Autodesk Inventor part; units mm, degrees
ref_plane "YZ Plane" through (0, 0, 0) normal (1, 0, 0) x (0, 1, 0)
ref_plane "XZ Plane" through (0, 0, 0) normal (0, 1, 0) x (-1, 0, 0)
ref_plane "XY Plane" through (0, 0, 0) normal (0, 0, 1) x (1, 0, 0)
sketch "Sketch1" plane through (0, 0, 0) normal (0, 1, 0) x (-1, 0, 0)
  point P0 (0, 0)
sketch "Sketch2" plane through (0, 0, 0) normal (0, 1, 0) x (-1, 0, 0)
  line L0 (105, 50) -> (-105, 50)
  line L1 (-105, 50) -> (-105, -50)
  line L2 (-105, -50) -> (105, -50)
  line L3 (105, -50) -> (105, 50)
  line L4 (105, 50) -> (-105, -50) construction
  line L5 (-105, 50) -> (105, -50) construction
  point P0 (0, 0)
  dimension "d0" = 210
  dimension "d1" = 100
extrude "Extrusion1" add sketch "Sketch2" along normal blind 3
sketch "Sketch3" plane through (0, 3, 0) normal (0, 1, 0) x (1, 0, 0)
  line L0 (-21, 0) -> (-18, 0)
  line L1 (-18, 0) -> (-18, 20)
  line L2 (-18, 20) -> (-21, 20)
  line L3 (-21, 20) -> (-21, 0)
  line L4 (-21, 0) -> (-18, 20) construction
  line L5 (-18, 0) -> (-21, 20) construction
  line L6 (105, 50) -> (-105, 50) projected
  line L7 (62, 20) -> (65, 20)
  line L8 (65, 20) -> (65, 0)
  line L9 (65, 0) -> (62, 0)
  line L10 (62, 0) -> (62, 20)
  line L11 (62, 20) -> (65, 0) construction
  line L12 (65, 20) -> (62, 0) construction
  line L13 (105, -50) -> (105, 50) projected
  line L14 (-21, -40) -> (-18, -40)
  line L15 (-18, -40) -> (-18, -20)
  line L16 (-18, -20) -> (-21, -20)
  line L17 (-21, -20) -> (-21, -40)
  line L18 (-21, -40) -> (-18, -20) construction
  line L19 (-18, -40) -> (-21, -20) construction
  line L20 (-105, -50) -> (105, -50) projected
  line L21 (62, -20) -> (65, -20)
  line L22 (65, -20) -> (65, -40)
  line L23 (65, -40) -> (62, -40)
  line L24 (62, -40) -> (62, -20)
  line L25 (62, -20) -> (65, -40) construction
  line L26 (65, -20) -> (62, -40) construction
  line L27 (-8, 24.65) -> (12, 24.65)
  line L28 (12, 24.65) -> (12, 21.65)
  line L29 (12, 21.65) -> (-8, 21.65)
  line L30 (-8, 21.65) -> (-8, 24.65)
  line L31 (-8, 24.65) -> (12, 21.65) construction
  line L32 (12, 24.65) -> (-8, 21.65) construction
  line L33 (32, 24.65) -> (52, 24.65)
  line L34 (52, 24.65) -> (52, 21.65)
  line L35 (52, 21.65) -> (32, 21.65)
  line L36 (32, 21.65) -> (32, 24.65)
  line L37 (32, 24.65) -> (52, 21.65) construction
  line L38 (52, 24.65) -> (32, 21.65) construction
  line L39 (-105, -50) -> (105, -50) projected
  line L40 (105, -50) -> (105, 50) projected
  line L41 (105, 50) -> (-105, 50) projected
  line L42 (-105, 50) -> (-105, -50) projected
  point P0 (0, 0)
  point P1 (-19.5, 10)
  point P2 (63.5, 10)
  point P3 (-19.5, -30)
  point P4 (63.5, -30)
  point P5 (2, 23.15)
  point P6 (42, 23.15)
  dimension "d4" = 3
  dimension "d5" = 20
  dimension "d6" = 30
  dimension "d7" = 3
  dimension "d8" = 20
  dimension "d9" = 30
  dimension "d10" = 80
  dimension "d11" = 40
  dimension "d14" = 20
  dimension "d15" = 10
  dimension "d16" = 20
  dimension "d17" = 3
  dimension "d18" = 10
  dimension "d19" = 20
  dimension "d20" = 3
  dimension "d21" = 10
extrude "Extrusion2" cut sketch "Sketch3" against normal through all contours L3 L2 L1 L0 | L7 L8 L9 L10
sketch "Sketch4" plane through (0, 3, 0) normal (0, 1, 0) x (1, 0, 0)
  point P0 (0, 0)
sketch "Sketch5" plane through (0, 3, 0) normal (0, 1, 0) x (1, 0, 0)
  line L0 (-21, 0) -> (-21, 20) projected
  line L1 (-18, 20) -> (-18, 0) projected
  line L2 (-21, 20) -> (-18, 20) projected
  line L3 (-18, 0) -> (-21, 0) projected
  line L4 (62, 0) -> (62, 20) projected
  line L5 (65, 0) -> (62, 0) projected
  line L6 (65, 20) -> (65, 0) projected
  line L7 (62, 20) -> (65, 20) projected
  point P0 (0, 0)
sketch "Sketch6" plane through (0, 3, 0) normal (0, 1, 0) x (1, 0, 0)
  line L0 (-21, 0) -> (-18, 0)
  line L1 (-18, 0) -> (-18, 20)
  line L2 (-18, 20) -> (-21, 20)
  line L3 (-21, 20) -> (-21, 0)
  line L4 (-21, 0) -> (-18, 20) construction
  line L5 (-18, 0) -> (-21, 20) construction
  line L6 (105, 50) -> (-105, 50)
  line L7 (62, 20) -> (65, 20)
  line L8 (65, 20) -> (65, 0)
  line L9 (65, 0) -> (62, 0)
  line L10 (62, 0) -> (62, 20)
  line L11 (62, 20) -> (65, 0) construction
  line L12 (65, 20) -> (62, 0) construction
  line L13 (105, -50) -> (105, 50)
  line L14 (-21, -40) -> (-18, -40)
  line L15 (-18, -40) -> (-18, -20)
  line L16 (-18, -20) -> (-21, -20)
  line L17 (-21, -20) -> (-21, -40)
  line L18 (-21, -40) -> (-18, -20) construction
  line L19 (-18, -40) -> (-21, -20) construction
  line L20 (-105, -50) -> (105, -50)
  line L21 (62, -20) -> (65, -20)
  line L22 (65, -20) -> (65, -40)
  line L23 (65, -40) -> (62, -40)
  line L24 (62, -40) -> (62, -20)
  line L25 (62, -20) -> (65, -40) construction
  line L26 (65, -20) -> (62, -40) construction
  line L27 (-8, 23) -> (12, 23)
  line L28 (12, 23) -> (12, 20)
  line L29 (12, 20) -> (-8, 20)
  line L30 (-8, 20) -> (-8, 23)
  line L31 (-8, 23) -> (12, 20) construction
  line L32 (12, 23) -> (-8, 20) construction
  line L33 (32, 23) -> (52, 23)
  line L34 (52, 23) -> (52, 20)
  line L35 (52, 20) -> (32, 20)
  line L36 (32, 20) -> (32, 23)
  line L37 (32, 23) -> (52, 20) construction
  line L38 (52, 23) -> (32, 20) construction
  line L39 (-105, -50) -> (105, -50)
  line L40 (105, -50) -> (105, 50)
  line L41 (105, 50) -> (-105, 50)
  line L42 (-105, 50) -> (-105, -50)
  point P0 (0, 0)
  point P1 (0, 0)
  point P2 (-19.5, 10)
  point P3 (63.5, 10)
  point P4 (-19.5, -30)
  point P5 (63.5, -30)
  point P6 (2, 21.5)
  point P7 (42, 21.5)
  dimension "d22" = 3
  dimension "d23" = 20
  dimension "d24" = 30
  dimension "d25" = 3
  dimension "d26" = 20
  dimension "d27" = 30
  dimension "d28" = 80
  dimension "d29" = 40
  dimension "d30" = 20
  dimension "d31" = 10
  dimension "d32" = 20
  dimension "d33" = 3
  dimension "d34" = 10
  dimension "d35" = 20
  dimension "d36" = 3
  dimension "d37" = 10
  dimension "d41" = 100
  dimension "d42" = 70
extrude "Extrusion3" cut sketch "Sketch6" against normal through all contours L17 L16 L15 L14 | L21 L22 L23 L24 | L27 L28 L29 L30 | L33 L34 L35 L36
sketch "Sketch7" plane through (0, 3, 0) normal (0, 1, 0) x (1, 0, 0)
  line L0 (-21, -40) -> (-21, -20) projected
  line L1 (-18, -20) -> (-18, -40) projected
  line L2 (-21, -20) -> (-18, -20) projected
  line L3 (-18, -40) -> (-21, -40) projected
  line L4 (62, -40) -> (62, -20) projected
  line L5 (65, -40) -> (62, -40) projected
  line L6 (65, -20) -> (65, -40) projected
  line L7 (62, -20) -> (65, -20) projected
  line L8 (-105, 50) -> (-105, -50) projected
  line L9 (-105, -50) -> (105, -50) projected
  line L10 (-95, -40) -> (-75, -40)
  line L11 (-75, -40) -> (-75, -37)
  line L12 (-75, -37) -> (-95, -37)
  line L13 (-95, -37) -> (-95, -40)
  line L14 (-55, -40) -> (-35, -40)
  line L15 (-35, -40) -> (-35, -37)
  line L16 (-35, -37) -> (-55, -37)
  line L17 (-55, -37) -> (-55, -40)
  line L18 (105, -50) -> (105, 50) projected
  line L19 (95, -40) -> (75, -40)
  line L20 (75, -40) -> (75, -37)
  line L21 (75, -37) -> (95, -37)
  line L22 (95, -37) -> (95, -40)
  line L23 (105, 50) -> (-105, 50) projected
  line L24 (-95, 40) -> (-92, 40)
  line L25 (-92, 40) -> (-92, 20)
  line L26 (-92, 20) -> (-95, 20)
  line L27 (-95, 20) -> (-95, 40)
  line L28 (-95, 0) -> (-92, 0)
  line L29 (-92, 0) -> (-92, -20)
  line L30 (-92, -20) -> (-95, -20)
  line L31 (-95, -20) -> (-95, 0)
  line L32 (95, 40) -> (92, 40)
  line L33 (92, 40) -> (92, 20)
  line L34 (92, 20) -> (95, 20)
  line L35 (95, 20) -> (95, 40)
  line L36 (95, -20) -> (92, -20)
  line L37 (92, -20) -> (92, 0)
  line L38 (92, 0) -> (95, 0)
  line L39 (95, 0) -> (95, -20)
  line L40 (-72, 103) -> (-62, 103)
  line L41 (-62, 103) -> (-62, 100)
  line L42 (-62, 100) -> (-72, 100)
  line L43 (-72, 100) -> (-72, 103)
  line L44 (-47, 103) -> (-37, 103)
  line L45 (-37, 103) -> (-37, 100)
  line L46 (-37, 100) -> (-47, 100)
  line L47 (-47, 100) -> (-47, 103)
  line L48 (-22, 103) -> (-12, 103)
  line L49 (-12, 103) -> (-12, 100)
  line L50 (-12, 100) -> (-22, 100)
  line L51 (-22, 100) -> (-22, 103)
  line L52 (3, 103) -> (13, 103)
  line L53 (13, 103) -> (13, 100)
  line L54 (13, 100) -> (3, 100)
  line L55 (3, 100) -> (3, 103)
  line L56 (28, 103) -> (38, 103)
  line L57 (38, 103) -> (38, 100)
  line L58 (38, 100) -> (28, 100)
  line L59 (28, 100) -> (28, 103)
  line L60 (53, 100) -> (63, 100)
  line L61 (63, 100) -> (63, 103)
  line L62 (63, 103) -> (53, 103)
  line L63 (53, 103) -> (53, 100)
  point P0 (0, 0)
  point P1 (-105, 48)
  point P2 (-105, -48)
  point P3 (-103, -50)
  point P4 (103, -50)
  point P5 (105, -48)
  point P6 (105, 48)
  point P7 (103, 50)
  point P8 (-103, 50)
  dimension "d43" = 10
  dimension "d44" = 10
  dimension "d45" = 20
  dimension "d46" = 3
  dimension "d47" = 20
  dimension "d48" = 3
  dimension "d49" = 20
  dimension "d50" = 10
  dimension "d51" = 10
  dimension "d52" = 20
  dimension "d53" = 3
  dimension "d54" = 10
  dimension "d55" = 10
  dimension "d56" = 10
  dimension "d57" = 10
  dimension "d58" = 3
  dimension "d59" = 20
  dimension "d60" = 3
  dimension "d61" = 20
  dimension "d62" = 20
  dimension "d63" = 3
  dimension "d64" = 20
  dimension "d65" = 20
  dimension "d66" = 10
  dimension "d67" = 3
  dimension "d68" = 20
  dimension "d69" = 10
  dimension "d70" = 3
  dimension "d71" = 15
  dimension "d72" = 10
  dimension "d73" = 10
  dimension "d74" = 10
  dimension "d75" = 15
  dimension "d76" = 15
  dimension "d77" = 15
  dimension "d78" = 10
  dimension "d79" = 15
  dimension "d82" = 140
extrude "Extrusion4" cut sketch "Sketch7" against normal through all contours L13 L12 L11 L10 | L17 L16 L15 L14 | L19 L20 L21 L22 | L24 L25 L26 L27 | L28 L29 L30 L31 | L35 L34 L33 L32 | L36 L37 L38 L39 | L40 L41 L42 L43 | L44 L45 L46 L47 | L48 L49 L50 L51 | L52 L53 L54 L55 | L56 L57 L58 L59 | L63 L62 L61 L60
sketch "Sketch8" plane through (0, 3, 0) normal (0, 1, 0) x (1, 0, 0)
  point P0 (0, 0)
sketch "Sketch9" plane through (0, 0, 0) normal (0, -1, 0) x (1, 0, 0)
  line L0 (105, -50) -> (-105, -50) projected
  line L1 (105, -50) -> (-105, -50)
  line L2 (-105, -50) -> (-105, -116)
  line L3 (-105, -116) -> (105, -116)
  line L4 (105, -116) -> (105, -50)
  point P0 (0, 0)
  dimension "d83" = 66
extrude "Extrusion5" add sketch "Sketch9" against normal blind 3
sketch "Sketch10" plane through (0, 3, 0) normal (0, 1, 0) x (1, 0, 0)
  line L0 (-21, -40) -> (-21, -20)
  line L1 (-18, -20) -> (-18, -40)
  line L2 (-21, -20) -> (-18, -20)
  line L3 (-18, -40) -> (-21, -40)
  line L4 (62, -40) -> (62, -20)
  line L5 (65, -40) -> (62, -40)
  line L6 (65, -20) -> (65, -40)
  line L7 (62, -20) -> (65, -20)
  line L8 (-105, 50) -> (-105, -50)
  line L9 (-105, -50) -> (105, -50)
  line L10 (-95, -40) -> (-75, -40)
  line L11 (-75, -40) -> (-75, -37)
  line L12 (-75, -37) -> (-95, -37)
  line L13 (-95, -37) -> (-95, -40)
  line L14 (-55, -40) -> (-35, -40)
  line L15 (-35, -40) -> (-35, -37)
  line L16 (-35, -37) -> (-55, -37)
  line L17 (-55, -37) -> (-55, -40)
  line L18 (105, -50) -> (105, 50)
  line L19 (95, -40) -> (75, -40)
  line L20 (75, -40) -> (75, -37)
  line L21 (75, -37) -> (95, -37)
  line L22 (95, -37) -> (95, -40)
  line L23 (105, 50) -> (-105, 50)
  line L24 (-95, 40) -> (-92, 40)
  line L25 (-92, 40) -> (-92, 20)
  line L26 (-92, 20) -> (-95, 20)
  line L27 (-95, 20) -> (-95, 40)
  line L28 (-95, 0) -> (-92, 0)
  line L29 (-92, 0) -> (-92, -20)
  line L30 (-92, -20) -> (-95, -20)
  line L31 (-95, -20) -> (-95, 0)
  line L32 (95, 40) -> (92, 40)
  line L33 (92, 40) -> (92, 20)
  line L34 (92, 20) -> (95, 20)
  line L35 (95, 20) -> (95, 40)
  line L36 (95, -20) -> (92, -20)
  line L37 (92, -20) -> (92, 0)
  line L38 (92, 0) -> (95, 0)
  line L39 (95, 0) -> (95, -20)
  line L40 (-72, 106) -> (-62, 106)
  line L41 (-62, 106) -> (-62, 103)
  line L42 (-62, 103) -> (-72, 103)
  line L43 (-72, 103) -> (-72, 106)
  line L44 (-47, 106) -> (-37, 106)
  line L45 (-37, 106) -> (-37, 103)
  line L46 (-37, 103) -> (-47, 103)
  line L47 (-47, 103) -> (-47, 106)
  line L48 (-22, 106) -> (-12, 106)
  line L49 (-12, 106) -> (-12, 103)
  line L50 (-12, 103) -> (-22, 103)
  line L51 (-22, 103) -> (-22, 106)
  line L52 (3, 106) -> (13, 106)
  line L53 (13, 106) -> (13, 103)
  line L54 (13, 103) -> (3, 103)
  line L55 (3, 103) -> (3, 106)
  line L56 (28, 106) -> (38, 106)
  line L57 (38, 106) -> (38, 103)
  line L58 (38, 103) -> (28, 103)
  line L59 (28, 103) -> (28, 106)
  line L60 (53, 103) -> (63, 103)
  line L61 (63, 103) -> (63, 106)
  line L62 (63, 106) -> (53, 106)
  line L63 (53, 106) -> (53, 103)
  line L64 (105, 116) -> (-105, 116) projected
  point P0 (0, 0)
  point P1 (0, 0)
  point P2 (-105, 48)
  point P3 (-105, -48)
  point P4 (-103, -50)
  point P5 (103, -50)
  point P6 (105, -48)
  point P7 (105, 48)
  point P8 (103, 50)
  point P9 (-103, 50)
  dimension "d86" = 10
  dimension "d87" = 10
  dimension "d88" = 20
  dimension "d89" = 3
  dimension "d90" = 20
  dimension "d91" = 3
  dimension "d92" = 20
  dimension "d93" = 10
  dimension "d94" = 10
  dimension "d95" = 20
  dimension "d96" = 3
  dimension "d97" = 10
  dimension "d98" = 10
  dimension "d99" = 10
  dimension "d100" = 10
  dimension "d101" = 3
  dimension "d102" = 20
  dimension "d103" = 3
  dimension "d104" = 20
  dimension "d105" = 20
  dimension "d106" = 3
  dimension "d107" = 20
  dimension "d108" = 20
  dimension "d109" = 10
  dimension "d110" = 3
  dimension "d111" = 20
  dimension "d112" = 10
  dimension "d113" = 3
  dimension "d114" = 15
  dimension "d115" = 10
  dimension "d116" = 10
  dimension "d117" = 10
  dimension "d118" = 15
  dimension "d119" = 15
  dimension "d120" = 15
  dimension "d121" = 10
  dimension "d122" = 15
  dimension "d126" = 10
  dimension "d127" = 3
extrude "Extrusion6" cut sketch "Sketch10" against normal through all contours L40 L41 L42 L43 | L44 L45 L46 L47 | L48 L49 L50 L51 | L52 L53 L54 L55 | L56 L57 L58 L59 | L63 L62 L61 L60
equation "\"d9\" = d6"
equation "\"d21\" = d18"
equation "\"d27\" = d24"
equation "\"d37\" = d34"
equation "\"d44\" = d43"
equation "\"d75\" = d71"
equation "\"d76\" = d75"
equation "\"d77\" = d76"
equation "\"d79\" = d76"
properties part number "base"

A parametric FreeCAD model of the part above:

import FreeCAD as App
import Part
import Sketcher
from FreeCAD import Vector


def add_polygon(sketch, points):
    """Adds a closed chain of lines whose ends are joined by coincident constraints."""
    first, n = sketch.GeometryCount, len(points)
    for a, b in zip(points, points[1:] + points[:1]):
        sketch.addGeometry(Part.LineSegment(App.Vector(*a, 0), App.Vector(*b, 0)), False)
    for i in range(n):
        sketch.addConstraint(Sketcher.Constraint("Coincident", first + i, 2, first + (i + 1) % n, 1))

doc = App.newDocument("Part")
body = doc.addObject("PartDesign::Body", "Body")

sketch1 = body.newObject("Sketcher::SketchObject", "Sketch")
sketch1.AttachmentSupport = (doc.getObject("XZ_Plane"), [""])
sketch1.MapMode = "FlatFace"
add_polygon(sketch1, [(-105, -50), (-105, 50), (105, 50), (105, -50)])
sketch1.addConstraint([
    Sketcher.Constraint("Vertical", 0),
    Sketcher.Constraint("Horizontal", 1),
    Sketcher.Constraint("Vertical", 2),
    Sketcher.Constraint("Horizontal", 3),
    Sketcher.Constraint("Symmetric", 0, 2, 2, 2, -1, 1),
    Sketcher.Constraint("DistanceX", 1, 1, 1, 2, 210.0),
    Sketcher.Constraint("DistanceY", 0, 1, 0, 2, 100.0),
])
pad1 = body.newObject("PartDesign::Pad", "Pad")
pad1.Profile = sketch1
pad1.Length = 3
pad1.Reversed = True

sketch2 = body.newObject("Sketcher::SketchObject", "Sketch001")
sketch2.AttachmentSupport = (doc.getObject("XZ_Plane"), [""])
sketch2.MapMode = "FlatFace"
sketch2.AttachmentOffset = App.Placement(Vector(0, 0, -3), App.Rotation())
add_polygon(sketch2, [(-21, -20), (-21, 0), (-18, 0), (-18, -20)])
add_polygon(sketch2, [(65, -20), (62, -20), (62, 0), (65, 0)])
sketch2.addConstraint([
    Sketcher.Constraint("Vertical", 0),
    Sketcher.Constraint("Horizontal", 1),
    Sketcher.Constraint("Vertical", 2),
    Sketcher.Constraint("Horizontal", 3),
    Sketcher.Constraint("Horizontal", 4),
    Sketcher.Constraint("Vertical", 5),
    Sketcher.Constraint("Horizontal", 6),
    Sketcher.Constraint("Vertical", 7),
    Sketcher.Constraint("PointOnObject", 0, 2, -1),
    Sketcher.Constraint("PointOnObject", 5, 2, -1),
    Sketcher.Constraint("Horizontal", 3, 2, 4, 2),
    Sketcher.Constraint("Equal", 3, 4),
    Sketcher.Constraint("DistanceX", 1, 1, 1, 2, 3.0),
    Sketcher.Constraint("DistanceY", 0, 1, 0, 2, 20.0),
    Sketcher.Constraint("DistanceX", 2, 2, 4, 2, 80.0),
    Sketcher.Constraint("DistanceX", 0, 2, -1, 1, 21.0),
])
pocket1 = body.newObject("PartDesign::Pocket", "Pocket")
pocket1.Profile = sketch2
pocket1.Type = "ThroughAll"
pocket1.Reversed = True

sketch3 = body.newObject("Sketcher::SketchObject", "Sketch002")
sketch3.AttachmentSupport = (doc.getObject("XZ_Plane"), [""])
sketch3.MapMode = "FlatFace"
sketch3.AttachmentOffset = App.Placement(Vector(0, 0, -3), App.Rotation())
add_polygon(sketch3, [(-21, 20), (-21, 40), (-18, 40), (-18, 20)])
add_polygon(sketch3, [(65, 20), (62, 20), (62, 40), (65, 40)])
add_polygon(sketch3, [(12, -23), (-8, -23), (-8, -20), (12, -20)])
add_polygon(sketch3, [(52, -23), (32, -23), (32, -20), (52, -20)])
sketch3.addConstraint([
    Sketcher.Constraint("Vertical", 0),
    Sketcher.Constraint("Horizontal", 1),
    Sketcher.Constraint("Vertical", 2),
    Sketcher.Constraint("Horizontal", 3),
    Sketcher.Constraint("Horizontal", 4),
    Sketcher.Constraint("Vertical", 5),
    Sketcher.Constraint("Horizontal", 6),
    Sketcher.Constraint("Vertical", 7),
    Sketcher.Constraint("Horizontal", 8),
    Sketcher.Constraint("Vertical", 9),
    Sketcher.Constraint("Horizontal", 10),
    Sketcher.Constraint("Vertical", 11),
    Sketcher.Constraint("Horizontal", 12),
    Sketcher.Constraint("Vertical", 13),
    Sketcher.Constraint("Horizontal", 14),
    Sketcher.Constraint("Vertical", 15),
    Sketcher.Constraint("Horizontal", 3, 2, 4, 2),
    Sketcher.Constraint("Horizontal", 1, 2, 5, 2),
    Sketcher.Constraint("Horizontal", 11, 2, 12, 2),
    Sketcher.Constraint("Horizontal", 10, 2, 13, 2),
    Sketcher.Constraint("Equal", 3, 4),
    Sketcher.Constraint("Equal", 10, 12),
    Sketcher.Constraint("Equal", 14, 0),
    Sketcher.Constraint("Equal", 6, 9),
    Sketcher.Constraint("DistanceX", 1, 1, 1, 2, 3.0),
    Sketcher.Constraint("DistanceX", 8, 2, 8, 1, 20.0),
    Sketcher.Constraint("DistanceY", -1, 1, 0, 2, 40.0),
    Sketcher.Constraint("DistanceY", 9, 2, -1, 1, 20.0),
    Sketcher.Constraint("DistanceX", 2, 2, 4, 2, 80.0),
    Sketcher.Constraint("DistanceX", 2, 2, 8, 2, 10.0),
    Sketcher.Constraint("DistanceX", 11, 2, 12, 2, 20.0),
    Sketcher.Constraint("DistanceX", 0, 2, -1, 1, 21.0),
])
pocket2 = body.newObject("PartDesign::Pocket", "Pocket001")
pocket2.Profile = sketch3
pocket2.Type = "ThroughAll"
pocket2.Reversed = True

sketch4 = body.newObject("Sketcher::SketchObject", "Sketch003")
sketch4.AttachmentSupport = (doc.getObject("XZ_Plane"), [""])
sketch4.MapMode = "FlatFace"
sketch4.AttachmentOffset = App.Placement(Vector(0, 0, -3), App.Rotation())
add_polygon(sketch4, [(-95, 37), (-95, 40), (-75, 40), (-75, 37)])
add_polygon(sketch4, [(-55, 37), (-55, 40), (-35, 40), (-35, 37)])
add_polygon(sketch4, [(75, 40), (95, 40), (95, 37), (75, 37)])
add_polygon(sketch4, [(-92, -40), (-95, -40), (-95, -20), (-92, -20)])
add_polygon(sketch4, [(-92, 0), (-95, 0), (-95, 20), (-92, 20)])
add_polygon(sketch4, [(95, -20), (95, -40), (92, -40), (92, -20)])
add_polygon(sketch4, [(92, 20), (95, 20), (95, 0), (92, 0)])
add_polygon(sketch4, [(-62, -103), (-72, -103), (-72, -100), (-62, -100)])
add_polygon(sketch4, [(-37, -103), (-47, -103), (-47, -100), (-37, -100)])
add_polygon(sketch4, [(-12, -103), (-22, -103), (-22, -100), (-12, -100)])
add_polygon(sketch4, [(13, -103), (3, -103), (3, -100), (13, -100)])
add_polygon(sketch4, [(38, -103), (28, -103), (28, -100), (38, -100)])
add_polygon(sketch4, [(53, -103), (53, -100), (63, -100), (63, -103)])
sketch4.addConstraint([
    Sketcher.Constraint("Vertical", 0),
    Sketcher.Constraint("Horizontal", 1),
    Sketcher.Constraint("Vertical", 2),
    Sketcher.Constraint("Horizontal", 3),
    Sketcher.Constraint("Vertical", 4),
    Sketcher.Constraint("Horizontal", 5),
    Sketcher.Constraint("Vertical", 6),
    Sketcher.Constraint("Horizontal", 7),
    Sketcher.Constraint("Horizontal", 8),
    Sketcher.Constraint("Vertical", 9),
    Sketcher.Constraint("Horizontal", 10),
    Sketcher.Constraint("Vertical", 11),
    Sketcher.Constraint("Horizontal", 12),
    Sketcher.Constraint("Vertical", 13),
    Sketcher.Constraint("Horizontal", 14),
    Sketcher.Constraint("Vertical", 15),
    Sketcher.Constraint("Horizontal", 16),
    Sketcher.Constraint("Vertical", 17),
    Sketcher.Constraint("Horizontal", 18),
    Sketcher.Constraint("Vertical", 19),
    Sketcher.Constraint("Vertical", 20),
    Sketcher.Constraint("Horizontal", 21),
    Sketcher.Constraint("Vertical", 22),
    Sketcher.Constraint("Horizontal", 23),
    Sketcher.Constraint("Horizontal", 24),
    Sketcher.Constraint("Vertical", 25),
    Sketcher.Constraint("Horizontal", 26),
    Sketcher.Constraint("Vertical", 27),
    Sketcher.Constraint("Horizontal", 28),
    Sketcher.Constraint("Vertical", 29),
    Sketcher.Constraint("Horizontal", 30),
    Sketcher.Constraint("Vertical", 31),
    Sketcher.Constraint("Horizontal", 32),
    Sketcher.Constraint("Vertical", 33),
    Sketcher.Constraint("Horizontal", 34),
    Sketcher.Constraint("Vertical", 35),
    Sketcher.Constraint("Horizontal", 36),
    Sketcher.Constraint("Vertical", 37),
    Sketcher.Constraint("Horizontal", 38),
    Sketcher.Constraint("Vertical", 39),
    Sketcher.Constraint("Horizontal", 40),
    Sketcher.Constraint("Vertical", 41),
    Sketcher.Constraint("Horizontal", 42),
    Sketcher.Constraint("Vertical", 43),
    Sketcher.Constraint("Horizontal", 44),
    Sketcher.Constraint("Vertical", 45),
    Sketcher.Constraint("Horizontal", 46),
    Sketcher.Constraint("Vertical", 47),
    Sketcher.Constraint("Vertical", 48),
    Sketcher.Constraint("Horizontal", 49),
    Sketcher.Constraint("Vertical", 50),
    Sketcher.Constraint("Horizontal", 51),
    Sketcher.Constraint("Symmetric", 8, 2, 12, 2, -1, 1),
    Sketcher.Constraint("Symmetric", 0, 2, 20, 2, -1, 1),
    Sketcher.Constraint("Symmetric", 18, 2, 22, 2, -1, 1),
    Sketcher.Constraint("Symmetric", 13, 2, 24, 2, -1, 1),
    Sketcher.Constraint("Symmetric", 16, 2, 25, 2, -1, 1),
    Sketcher.Constraint("Symmetric", 0, 2, 8, 2, -2),
    Sketcher.Constraint("Symmetric", 2, 2, 10, 2, -2),
    Sketcher.Constraint("Symmetric", 14, 2, 22, 2, -2),
    Sketcher.Constraint("Symmetric", 19, 2, 26, 2, -2),
    Sketcher.Constraint("Horizontal", 1, 2, 4, 2),
    Sketcher.Constraint("Horizontal", 3, 2, 6, 2),
    Sketcher.Constraint("Horizontal", 31, 2, 32, 2),
    Sketcher.Constraint("Horizontal", 30, 2, 33, 2),
    Sketcher.Constraint("Horizontal", 35, 2, 36, 2),
    Sketcher.Constraint("Horizontal", 34, 2, 37, 2),
    Sketcher.Constraint("Horizontal", 39, 2, 40, 2),
    Sketcher.Constraint("Horizontal", 38, 2, 41, 2),
    Sketcher.Constraint("Horizontal", 43, 2, 44, 2),
    Sketcher.Constraint("Horizontal", 42, 2, 45, 2),
    Sketcher.Constraint("Horizontal", 46, 2, 48, 2),
    Sketcher.Constraint("Horizontal", 47, 2, 50, 2),
    Sketcher.Constraint("Equal", 3, 5),
    Sketcher.Constraint("Equal", 30, 32),
    Sketcher.Constraint("Equal", 34, 36),
    Sketcher.Constraint("Equal", 38, 40),
    Sketcher.Constraint("Equal", 42, 44),
    Sketcher.Constraint("Equal", 46, 49),
    Sketcher.Constraint("Equal", 26, 0),
    Sketcher.Constraint("Equal", 10, 13),
    Sketcher.Constraint("Equal", 15, 17),
    Sketcher.Constraint("Equal", 11, 29),
    Sketcher.Constraint("DistanceX", 1, 1, 1, 2, 20.0),
    Sketcher.Constraint("DistanceX", 12, 2, 12, 1, 3.0),
    Sketcher.Constraint("DistanceX", 28, 2, 28, 1, 10.0),
    Sketcher.Constraint("DistanceX", -1, 1, 40, 2, 3.0),
    Sketcher.Constraint("DistanceX", 1, 2, 4, 2, 20.0),
    Sketcher.Constraint("DistanceX", 15, 2, 28, 2, 20.0),
    Sketcher.Constraint("DistanceX", 31, 2, 32, 2, 15.0),
    Sketcher.Constraint("DistanceX", 35, 2, 36, 2, 15.0),
    Sketcher.Constraint("DistanceX", 39, 2, 40, 2, 15.0),
    Sketcher.Constraint("DistanceX", 43, 2, 44, 2, 15.0),
    Sketcher.Constraint("DistanceX", 46, 2, 48, 2, 15.0),
    Sketcher.Constraint("DistanceY", 28, 2, -1, 1, 103.0),
])
pocket3 = body.newObject("PartDesign::Pocket", "Pocket002")
pocket3.Profile = sketch4
pocket3.Type = "ThroughAll"
pocket3.Reversed = True

sketch5 = body.newObject("Sketcher::SketchObject", "Sketch004")
sketch5.AttachmentSupport = (doc.getObject("XZ_Plane"), [""])
sketch5.MapMode = "FlatFace"
add_polygon(sketch5, [(105, -116), (105, -50), (-105, -50), (-105, -116)])
sketch5.addConstraint([
    Sketcher.Constraint("Vertical", 0),
    Sketcher.Constraint("Horizontal", 1),
    Sketcher.Constraint("Vertical", 2),
    Sketcher.Constraint("Horizontal", 3),
    Sketcher.Constraint("DistanceY", 0, 1, 0, 2, 66.0),
    Sketcher.Constraint("DistanceX", 1, 2, 1, 1, 210.0),
    Sketcher.Constraint("DistanceX", -1, 1, 0, 2, 105.0),
    Sketcher.Constraint("DistanceY", 0, 2, -1, 1, 50.0),
])
pad2 = body.newObject("PartDesign::Pad", "Pad001")
pad2.Profile = sketch5
pad2.Length = 3
pad2.Reversed = True

sketch6 = body.newObject("Sketcher::SketchObject", "Sketch005")
sketch6.AttachmentSupport = (doc.getObject("XZ_Plane"), [""])
sketch6.MapMode = "FlatFace"
sketch6.AttachmentOffset = App.Placement(Vector(0, 0, -3), App.Rotation())
add_polygon(sketch6, [(-62, -106), (-72, -106), (-72, -103), (-62, -103)])
add_polygon(sketch6, [(-37, -106), (-47, -106), (-47, -103), (-37, -103)])
add_polygon(sketch6, [(-12, -106), (-22, -106), (-22, -103), (-12, -103)])
add_polygon(sketch6, [(13, -106), (3, -106), (3, -103), (13, -103)])
add_polygon(sketch6, [(38, -106), (28, -106), (28, -103), (38, -103)])
add_polygon(sketch6, [(53, -106), (53, -103), (63, -103), (63, -106)])
sketch6.addConstraint([
    Sketcher.Constraint("Horizontal", 0),
    Sketcher.Constraint("Vertical", 1),
    Sketcher.Constraint("Horizontal", 2),
    Sketcher.Constraint("Vertical", 3),
    Sketcher.Constraint("Horizontal", 4),
    Sketcher.Constraint("Vertical", 5),
    Sketcher.Constraint("Horizontal", 6),
    Sketcher.Constraint("Vertical", 7),
    Sketcher.Constraint("Horizontal", 8),
    Sketcher.Constraint("Vertical", 9),
    Sketcher.Constraint("Horizontal", 10),
    Sketcher.Constraint("Vertical", 11),
    Sketcher.Constraint("Horizontal", 12),
    Sketcher.Constraint("Vertical", 13),
    Sketcher.Constraint("Horizontal", 14),
    Sketcher.Constraint("Vertical", 15),
    Sketcher.Constraint("Horizontal", 16),
    Sketcher.Constraint("Vertical", 17),
    Sketcher.Constraint("Horizontal", 18),
    Sketcher.Constraint("Vertical", 19),
    Sketcher.Constraint("Vertical", 20),
    Sketcher.Constraint("Horizontal", 21),
    Sketcher.Constraint("Vertical", 22),
    Sketcher.Constraint("Horizontal", 23),
    Sketcher.Constraint("Horizontal", 3, 2, 4, 2),
    Sketcher.Constraint("Horizontal", 2, 2, 5, 2),
    Sketcher.Constraint("Horizontal", 7, 2, 8, 2),
    Sketcher.Constraint("Horizontal", 6, 2, 9, 2),
    Sketcher.Constraint("Horizontal", 11, 2, 12, 2),
    Sketcher.Constraint("Horizontal", 10, 2, 13, 2),
    Sketcher.Constraint("Horizontal", 15, 2, 16, 2),
    Sketcher.Constraint("Horizontal", 14, 2, 17, 2),
    Sketcher.Constraint("Horizontal", 18, 2, 20, 2),
    Sketcher.Constraint("Horizontal", 19, 2, 22, 2),
    Sketcher.Constraint("Equal", 2, 4),
    Sketcher.Constraint("Equal", 6, 8),
    Sketcher.Constraint("Equal", 10, 12),
    Sketcher.Constraint("Equal", 14, 16),
    Sketcher.Constraint("Equal", 18, 21),
    Sketcher.Constraint("DistanceX", 0, 2, 0, 1, 10.0),
    Sketcher.Constraint("DistanceY", 1, 1, 1, 2, 3.0),
    Sketcher.Constraint("DistanceX", -1, 1, 12, 2, 3.0),
    Sketcher.Constraint("DistanceX", 3, 2, 4, 2, 15.0),
    Sketcher.Constraint("DistanceX", 7, 2, 8, 2, 15.0),
    Sketcher.Constraint("DistanceX", 11, 2, 12, 2, 15.0),
    Sketcher.Constraint("DistanceX", 15, 2, 16, 2, 15.0),
    Sketcher.Constraint("DistanceX", 18, 2, 20, 2, 15.0),
    Sketcher.Constraint("DistanceY", 0, 2, -1, 1, 106.0),
])
pocket4 = body.newObject("PartDesign::Pocket", "Pocket003")
pocket4.Profile = sketch6
pocket4.Type = "ThroughAll"
pocket4.Reversed = True

doc.recompute()
